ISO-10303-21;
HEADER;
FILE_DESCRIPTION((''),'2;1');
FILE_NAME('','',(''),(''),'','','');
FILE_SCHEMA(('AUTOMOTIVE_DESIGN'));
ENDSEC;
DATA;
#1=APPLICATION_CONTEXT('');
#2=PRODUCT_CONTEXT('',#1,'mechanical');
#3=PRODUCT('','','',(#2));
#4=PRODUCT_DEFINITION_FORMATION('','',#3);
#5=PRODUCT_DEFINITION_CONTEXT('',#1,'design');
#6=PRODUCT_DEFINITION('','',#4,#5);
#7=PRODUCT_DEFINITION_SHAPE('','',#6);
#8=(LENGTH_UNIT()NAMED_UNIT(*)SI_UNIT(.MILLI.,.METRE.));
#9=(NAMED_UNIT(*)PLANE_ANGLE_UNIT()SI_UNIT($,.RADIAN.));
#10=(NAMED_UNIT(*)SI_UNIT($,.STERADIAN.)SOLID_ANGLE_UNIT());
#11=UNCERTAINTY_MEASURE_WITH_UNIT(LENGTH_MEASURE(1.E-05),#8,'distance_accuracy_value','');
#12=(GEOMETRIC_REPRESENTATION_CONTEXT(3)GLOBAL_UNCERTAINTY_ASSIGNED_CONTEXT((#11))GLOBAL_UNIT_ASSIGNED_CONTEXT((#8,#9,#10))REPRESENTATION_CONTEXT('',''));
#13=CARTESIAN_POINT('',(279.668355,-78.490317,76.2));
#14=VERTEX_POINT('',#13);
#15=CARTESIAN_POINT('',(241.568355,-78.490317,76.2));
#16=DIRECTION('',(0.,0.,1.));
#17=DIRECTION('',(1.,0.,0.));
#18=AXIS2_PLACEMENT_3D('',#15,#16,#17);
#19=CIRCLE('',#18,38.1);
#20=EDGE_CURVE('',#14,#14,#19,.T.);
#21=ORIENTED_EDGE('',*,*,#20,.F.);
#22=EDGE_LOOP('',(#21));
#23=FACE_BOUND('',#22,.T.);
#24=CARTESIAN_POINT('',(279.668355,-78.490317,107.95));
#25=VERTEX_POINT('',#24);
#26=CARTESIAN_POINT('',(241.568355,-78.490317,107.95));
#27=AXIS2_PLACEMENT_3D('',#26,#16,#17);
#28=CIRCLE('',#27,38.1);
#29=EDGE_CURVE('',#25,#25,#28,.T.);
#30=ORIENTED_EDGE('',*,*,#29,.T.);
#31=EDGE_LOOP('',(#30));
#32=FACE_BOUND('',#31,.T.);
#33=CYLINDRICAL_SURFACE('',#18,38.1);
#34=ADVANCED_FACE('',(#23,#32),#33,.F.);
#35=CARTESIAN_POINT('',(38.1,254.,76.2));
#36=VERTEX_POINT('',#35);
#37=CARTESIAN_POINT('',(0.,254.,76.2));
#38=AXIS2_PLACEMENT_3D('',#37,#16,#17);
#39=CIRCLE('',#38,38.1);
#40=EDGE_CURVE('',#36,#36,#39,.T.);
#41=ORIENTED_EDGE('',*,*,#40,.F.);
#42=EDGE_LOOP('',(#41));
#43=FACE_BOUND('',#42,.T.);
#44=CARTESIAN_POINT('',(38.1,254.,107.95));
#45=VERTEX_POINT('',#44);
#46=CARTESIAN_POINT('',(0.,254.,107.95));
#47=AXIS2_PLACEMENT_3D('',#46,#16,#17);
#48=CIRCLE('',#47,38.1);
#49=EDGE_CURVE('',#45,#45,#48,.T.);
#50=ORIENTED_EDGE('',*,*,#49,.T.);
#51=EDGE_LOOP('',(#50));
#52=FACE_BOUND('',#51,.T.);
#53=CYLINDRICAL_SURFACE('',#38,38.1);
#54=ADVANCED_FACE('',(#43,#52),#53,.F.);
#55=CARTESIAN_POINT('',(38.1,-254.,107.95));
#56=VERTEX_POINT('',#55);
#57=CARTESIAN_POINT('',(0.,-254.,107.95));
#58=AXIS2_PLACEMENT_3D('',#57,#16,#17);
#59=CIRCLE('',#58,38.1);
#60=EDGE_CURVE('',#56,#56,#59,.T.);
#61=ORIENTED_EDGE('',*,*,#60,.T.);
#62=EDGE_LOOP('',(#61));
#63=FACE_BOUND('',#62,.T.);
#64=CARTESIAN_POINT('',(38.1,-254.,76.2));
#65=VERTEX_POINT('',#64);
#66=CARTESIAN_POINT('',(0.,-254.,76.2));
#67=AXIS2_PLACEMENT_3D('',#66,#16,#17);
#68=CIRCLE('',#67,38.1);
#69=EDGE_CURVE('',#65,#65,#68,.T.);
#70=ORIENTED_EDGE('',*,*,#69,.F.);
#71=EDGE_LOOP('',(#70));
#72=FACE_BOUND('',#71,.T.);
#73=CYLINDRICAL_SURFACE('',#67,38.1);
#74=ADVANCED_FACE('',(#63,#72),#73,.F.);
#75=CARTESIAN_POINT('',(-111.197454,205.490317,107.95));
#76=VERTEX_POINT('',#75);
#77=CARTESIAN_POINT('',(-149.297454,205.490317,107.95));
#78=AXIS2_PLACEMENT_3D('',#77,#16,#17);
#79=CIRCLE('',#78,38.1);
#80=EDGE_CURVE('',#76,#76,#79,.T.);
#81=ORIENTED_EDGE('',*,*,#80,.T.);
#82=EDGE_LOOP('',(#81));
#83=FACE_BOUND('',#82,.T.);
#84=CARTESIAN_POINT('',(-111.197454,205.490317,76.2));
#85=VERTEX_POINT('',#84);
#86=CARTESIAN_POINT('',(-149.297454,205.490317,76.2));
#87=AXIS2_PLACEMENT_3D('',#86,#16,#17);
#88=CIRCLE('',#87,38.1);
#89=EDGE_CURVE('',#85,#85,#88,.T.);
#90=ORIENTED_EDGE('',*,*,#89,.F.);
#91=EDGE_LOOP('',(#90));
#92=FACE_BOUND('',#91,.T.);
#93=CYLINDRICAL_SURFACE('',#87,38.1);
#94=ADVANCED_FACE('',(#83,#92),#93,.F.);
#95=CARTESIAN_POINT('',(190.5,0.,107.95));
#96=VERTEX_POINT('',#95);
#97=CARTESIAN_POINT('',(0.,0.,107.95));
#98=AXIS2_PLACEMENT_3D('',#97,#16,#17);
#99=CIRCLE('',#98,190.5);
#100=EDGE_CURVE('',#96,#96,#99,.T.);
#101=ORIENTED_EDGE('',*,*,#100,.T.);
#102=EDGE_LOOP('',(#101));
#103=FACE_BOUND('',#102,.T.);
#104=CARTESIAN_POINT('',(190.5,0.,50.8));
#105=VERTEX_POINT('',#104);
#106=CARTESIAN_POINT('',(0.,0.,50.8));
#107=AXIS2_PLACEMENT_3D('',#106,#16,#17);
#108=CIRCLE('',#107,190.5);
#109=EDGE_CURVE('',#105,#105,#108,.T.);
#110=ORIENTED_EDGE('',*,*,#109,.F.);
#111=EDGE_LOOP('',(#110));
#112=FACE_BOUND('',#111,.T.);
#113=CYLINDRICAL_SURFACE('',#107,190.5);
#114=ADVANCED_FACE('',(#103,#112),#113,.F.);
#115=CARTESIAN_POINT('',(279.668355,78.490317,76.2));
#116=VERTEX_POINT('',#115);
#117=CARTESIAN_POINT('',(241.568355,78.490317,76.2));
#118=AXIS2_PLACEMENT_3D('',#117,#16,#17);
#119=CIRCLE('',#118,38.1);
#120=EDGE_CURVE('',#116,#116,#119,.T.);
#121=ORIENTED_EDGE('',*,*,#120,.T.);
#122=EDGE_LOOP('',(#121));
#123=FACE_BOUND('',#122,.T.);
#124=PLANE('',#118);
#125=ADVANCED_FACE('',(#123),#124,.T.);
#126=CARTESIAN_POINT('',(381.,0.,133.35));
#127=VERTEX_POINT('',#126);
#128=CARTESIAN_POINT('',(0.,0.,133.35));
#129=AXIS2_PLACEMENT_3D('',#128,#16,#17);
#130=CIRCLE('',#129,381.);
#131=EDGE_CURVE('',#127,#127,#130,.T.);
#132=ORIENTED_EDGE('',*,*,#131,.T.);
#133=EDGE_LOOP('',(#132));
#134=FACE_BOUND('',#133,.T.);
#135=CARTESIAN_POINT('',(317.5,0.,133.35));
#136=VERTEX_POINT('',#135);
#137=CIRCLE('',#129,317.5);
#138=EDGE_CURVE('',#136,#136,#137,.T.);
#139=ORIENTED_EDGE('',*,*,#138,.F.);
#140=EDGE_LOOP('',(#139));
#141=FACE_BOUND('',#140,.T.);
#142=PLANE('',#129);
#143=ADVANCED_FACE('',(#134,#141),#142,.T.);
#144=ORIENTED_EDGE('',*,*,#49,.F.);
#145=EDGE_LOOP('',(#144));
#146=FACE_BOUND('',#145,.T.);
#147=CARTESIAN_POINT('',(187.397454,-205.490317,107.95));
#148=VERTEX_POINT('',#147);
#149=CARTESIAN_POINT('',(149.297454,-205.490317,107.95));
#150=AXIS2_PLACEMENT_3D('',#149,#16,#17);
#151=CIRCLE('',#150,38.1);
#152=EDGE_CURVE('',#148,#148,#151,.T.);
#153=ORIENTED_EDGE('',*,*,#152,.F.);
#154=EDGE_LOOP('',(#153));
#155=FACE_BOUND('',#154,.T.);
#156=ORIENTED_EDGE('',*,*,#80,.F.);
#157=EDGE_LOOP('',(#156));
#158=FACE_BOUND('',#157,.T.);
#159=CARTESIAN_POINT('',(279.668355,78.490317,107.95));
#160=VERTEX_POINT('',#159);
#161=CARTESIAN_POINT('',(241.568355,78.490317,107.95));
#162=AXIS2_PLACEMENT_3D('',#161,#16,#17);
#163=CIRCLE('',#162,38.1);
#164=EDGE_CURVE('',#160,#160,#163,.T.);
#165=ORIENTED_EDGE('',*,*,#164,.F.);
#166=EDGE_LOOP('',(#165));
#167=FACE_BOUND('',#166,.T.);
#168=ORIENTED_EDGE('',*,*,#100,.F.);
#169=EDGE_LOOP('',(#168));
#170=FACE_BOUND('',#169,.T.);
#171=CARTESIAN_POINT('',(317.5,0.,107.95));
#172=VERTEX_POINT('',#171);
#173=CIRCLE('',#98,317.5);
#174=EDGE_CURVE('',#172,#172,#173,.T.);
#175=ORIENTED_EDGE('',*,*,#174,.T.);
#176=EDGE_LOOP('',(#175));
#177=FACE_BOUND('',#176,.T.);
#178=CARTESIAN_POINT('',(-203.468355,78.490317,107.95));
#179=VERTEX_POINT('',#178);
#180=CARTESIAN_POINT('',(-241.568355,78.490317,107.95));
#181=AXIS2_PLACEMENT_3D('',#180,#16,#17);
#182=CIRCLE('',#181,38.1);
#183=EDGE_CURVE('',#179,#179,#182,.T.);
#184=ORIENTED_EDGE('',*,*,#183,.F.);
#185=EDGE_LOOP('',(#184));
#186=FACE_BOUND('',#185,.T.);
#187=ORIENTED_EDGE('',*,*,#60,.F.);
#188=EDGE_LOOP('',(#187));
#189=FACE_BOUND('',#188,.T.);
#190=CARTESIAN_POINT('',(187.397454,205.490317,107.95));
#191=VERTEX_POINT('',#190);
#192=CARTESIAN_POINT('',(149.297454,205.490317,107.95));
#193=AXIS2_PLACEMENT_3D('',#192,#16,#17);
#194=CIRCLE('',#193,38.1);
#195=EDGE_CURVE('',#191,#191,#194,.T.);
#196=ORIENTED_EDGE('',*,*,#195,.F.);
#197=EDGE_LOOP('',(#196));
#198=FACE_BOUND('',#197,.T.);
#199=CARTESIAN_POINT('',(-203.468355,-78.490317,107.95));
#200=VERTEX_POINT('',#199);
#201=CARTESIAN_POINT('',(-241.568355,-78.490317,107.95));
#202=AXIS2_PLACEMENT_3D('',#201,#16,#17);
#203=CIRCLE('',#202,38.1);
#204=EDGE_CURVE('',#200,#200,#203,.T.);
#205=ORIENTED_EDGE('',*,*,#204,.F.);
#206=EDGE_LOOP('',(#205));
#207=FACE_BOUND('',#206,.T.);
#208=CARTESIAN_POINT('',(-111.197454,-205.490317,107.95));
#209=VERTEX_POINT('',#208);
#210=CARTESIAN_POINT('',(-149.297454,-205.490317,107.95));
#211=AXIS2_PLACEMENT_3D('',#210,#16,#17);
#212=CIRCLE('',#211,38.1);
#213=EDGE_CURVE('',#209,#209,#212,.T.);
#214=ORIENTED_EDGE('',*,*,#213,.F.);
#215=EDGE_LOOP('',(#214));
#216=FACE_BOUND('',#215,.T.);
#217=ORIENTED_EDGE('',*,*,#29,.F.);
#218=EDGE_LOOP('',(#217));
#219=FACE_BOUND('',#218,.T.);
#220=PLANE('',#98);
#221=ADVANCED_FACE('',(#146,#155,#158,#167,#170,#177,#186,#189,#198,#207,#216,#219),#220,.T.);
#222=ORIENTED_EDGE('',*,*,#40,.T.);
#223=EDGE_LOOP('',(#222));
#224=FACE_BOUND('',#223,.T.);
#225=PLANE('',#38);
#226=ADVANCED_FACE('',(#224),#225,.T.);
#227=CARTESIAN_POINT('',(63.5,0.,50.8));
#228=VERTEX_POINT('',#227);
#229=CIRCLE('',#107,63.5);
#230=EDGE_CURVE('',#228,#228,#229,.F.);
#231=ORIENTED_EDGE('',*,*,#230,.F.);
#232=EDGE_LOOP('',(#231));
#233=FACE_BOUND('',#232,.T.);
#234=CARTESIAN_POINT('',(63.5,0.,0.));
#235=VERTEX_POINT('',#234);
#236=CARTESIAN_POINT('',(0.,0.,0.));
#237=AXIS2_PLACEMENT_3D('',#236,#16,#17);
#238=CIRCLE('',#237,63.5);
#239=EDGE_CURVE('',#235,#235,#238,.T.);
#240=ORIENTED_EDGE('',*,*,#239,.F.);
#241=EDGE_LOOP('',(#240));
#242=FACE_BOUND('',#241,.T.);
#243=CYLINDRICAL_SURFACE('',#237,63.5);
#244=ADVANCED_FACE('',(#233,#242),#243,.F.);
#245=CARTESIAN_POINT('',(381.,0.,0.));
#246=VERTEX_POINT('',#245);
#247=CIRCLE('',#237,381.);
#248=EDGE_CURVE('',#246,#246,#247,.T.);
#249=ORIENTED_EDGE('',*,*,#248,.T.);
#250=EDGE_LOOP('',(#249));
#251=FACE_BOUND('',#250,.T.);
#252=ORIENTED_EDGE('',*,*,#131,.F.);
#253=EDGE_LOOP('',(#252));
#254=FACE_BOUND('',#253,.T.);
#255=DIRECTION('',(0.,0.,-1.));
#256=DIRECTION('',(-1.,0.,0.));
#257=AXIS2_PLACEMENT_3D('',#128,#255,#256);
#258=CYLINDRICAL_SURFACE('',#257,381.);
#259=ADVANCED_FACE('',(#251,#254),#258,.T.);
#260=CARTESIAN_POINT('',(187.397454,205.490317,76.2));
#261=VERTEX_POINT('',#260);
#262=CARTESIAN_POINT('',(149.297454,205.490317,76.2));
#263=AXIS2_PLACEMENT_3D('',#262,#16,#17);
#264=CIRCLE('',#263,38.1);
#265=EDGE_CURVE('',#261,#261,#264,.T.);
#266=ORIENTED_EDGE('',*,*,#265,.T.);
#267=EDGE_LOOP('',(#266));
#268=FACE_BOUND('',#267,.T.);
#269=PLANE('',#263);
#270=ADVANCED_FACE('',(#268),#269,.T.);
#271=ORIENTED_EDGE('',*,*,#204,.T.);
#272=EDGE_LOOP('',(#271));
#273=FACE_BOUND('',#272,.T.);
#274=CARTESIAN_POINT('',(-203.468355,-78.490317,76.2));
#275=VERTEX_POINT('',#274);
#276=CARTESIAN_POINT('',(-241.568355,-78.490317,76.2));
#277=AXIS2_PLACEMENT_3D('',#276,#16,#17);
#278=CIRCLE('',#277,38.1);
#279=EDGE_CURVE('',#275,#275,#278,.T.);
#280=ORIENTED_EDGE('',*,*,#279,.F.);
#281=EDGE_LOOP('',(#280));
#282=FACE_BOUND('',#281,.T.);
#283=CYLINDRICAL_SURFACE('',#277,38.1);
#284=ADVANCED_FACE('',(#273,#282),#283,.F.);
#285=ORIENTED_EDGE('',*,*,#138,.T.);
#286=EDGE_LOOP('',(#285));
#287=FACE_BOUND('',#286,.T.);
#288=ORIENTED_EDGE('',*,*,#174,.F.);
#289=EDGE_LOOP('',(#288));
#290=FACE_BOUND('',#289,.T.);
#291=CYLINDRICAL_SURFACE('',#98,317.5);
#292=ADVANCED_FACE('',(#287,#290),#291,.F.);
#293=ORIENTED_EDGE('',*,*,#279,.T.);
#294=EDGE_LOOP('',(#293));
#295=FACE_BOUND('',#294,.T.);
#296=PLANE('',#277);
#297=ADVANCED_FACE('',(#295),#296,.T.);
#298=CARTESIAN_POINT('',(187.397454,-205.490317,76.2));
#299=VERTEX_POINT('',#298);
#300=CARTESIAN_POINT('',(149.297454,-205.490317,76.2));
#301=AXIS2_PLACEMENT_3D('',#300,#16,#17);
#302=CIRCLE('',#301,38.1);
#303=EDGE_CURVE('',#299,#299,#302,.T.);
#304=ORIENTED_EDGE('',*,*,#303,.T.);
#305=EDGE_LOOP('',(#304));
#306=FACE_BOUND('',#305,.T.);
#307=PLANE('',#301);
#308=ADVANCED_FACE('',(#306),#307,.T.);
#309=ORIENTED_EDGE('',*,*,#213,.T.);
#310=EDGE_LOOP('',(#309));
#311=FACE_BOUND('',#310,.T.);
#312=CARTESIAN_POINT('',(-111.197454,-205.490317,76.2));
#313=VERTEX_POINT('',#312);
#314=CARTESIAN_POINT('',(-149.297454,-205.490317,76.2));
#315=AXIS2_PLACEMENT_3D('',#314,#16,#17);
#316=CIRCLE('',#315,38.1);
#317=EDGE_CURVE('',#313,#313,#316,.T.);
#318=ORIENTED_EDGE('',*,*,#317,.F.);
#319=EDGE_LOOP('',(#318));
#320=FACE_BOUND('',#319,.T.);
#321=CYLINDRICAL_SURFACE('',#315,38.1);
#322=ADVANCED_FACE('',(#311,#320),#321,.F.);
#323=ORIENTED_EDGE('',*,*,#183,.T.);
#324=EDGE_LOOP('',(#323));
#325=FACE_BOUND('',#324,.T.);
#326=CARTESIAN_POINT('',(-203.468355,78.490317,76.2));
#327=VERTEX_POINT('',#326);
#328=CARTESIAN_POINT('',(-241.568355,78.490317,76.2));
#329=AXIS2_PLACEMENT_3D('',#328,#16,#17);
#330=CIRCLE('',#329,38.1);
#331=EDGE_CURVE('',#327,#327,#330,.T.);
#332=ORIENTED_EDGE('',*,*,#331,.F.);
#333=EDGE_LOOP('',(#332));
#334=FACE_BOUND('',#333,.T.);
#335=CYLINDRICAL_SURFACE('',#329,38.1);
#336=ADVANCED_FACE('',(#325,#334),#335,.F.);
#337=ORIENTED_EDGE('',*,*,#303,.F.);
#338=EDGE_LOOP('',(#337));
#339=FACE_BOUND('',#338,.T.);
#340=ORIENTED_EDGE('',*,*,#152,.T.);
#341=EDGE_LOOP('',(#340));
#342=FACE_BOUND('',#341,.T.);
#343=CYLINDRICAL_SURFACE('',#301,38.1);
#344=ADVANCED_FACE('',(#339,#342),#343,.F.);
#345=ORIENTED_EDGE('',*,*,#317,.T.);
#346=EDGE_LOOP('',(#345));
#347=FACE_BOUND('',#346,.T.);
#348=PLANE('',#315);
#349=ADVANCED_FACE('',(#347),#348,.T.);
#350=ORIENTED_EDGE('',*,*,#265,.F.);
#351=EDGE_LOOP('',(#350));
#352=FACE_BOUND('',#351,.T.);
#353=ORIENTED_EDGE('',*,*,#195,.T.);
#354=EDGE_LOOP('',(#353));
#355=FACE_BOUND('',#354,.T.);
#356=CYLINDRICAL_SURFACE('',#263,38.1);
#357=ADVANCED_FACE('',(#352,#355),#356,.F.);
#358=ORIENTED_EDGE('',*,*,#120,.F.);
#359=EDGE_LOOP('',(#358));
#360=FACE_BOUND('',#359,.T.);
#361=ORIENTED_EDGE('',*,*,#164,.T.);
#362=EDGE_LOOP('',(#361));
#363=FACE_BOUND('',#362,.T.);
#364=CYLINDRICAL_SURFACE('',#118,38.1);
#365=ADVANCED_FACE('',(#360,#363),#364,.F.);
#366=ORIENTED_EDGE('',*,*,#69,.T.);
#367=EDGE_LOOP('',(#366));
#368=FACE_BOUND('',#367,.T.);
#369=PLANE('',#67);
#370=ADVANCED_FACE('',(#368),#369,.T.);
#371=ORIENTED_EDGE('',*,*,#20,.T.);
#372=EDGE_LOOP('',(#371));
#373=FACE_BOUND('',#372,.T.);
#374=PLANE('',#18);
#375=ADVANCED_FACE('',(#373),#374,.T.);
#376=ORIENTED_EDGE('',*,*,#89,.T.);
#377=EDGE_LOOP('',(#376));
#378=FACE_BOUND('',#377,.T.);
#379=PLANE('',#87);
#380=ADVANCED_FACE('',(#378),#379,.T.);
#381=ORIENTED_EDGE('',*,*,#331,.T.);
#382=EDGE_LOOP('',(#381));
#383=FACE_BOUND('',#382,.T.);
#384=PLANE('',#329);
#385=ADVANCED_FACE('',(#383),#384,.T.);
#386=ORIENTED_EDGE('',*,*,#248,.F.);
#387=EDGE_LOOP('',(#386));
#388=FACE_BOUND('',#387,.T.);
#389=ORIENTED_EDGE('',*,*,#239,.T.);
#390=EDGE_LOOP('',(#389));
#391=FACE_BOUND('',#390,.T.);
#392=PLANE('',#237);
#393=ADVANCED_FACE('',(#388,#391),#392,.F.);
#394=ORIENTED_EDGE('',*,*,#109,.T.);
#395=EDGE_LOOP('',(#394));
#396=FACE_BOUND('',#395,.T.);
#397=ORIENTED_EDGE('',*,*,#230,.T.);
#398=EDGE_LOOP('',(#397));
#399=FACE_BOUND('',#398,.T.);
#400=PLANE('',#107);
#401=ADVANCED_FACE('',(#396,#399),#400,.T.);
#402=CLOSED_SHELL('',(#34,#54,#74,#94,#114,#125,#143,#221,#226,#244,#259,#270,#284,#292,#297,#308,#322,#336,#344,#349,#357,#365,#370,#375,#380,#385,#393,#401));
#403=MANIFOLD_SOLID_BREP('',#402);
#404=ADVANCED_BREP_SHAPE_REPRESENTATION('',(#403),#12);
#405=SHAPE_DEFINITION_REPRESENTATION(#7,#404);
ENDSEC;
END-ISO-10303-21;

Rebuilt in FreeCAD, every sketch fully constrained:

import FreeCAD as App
import Part
import Sketcher
from FreeCAD import Vector
Q = App.Units.Quantity

doc = App.newDocument("Part")
body = doc.addObject("PartDesign::Body", "Body")

# Sketch on XY plane
sketch1 = body.newObject("Sketcher::SketchObject", "Sketch")
sketch1.AttachmentSupport = (doc.getObject("XY_Plane"), [""])
sketch1.MapMode = "FlatFace"
sketch1.addGeometry(Part.Circle(Vector(0, 0, 0), Vector(0, 0, 1), 381), False)
sketch1.addConstraint([
    Sketcher.Constraint("Coincident", 0, 3, -1, 1),
    Sketcher.Constraint("Diameter", 0, Q("30 in")),
])
pad1 = body.newObject("PartDesign::Pad", "Pad")
pad1.Profile = sketch1
pad1.Length = Q("5.25 in")

# Sketch on XY plane
sketch2 = body.newObject("Sketcher::SketchObject", "Sketch001")
sketch2.AttachmentSupport = (doc.getObject("XY_Plane"), [""])
sketch2.MapMode = "FlatFace"
sketch2.AttachmentOffset = App.Placement(Vector(0, 0, 5.25 * 25.4), App.Rotation())
sketch2.addGeometry(Part.Circle(Vector(0, 0, 0), Vector(0, 0, 1), 64), False)
sketch2.addConstraint([
    Sketcher.Constraint("Coincident", 0, 3, -1, 1),
    Sketcher.Constraint("Diameter", 0, Q("5 in")),
])
pocket1 = body.newObject("PartDesign::Pocket", "Pocket")
pocket1.Profile = sketch2
pocket1.Type = "ThroughAll"

# Sketch on XY plane
sketch3 = body.newObject("Sketcher::SketchObject", "Sketch002")
sketch3.AttachmentSupport = (doc.getObject("XY_Plane"), [""])
sketch3.MapMode = "FlatFace"
sketch3.AttachmentOffset = App.Placement(Vector(0, 0, 5.25 * 25.4), App.Rotation())
sketch3.addGeometry(Part.Circle(Vector(0, 0, 0), Vector(0, 0, 1), 318), False)
sketch3.addConstraint([
    Sketcher.Constraint("Coincident", 0, 3, -1, 1),
    Sketcher.Constraint("Diameter", 0, Q("25 in")),
])
pocket2 = body.newObject("PartDesign::Pocket", "Pocket001")
pocket2.Profile = sketch3
pocket2.Length = Q("1 in")

# Sketch on XY plane
sketch4 = body.newObject("Sketcher::SketchObject", "Sketch003")
sketch4.AttachmentSupport = (doc.getObject("XY_Plane"), [""])
sketch4.MapMode = "FlatFace"
sketch4.AttachmentOffset = App.Placement(Vector(0, 0, 5.25 * 25.4), App.Rotation())
sketch4.addGeometry(Part.Circle(Vector(0, 0, 0), Vector(0, 0, 1), 190), False)
sketch4.addConstraint([
    Sketcher.Constraint("Coincident", 0, 3, -1, 1),
    Sketcher.Constraint("Diameter", 0, Q("15 in")),
])
pocket3 = body.newObject("PartDesign::Pocket", "Pocket002")
pocket3.Profile = sketch4
pocket3.Length = Q("3.25 in")

# Sketch on XY plane
sketch5 = body.newObject("Sketcher::SketchObject", "Sketch004")
sketch5.AttachmentSupport = (doc.getObject("XY_Plane"), [""])
sketch5.MapMode = "FlatFace"
sketch5.AttachmentOffset = App.Placement(Vector(0, 0, 5.25 * 25.4), App.Rotation())
sketch5.addGeometry([
    Part.Circle(Vector(0, 254, 0), Vector(0, 0, 1), 38),  # 0
    Part.Circle(Vector(149, 205, 0), Vector(0, 0, 1), 38),  # 1
    Part.Circle(Vector(242, 78, 0), Vector(0, 0, 1), 38),  # 2
    Part.Circle(Vector(242, -78, 0), Vector(0, 0, 1), 38),  # 3
    Part.Circle(Vector(149, -205, 0), Vector(0, 0, 1), 38),  # 4
    Part.Circle(Vector(0, -254, 0), Vector(0, 0, 1), 38),  # 5
    Part.Circle(Vector(-149, -205, 0), Vector(0, 0, 1), 38),  # 6
    Part.Circle(Vector(-242, -78, 0), Vector(0, 0, 1), 38),  # 7
    Part.Circle(Vector(-242, 78, 0), Vector(0, 0, 1), 38),  # 8
    Part.Circle(Vector(-149, 205, 0), Vector(0, 0, 1), 38),  # 9
], False)
sketch5.addConstraint([
    Sketcher.Constraint("Equal", 0, 1),
    Sketcher.Constraint("Equal", 1, 2),
    Sketcher.Constraint("Equal", 2, 3),
    Sketcher.Constraint("Equal", 3, 4),
    Sketcher.Constraint("Equal", 4, 5),
    Sketcher.Constraint("Equal", 5, 6),
    Sketcher.Constraint("Equal", 6, 7),
    Sketcher.Constraint("Equal", 7, 8),
    Sketcher.Constraint("Equal", 8, 9),
    Sketcher.Constraint("Symmetric", 0, 3, 5, 3, -1, 1),
    Sketcher.Constraint("Symmetric", 1, 3, 6, 3, -1, 1),
    Sketcher.Constraint("Symmetric", 2, 3, 7, 3, -1, 1),
    Sketcher.Constraint("Symmetric", 3, 3, 8, 3, -1, 1),
    Sketcher.Constraint("Symmetric", 4, 3, 9, 3, -1, 1),
    Sketcher.Constraint("Symmetric", 4, 3, 6, 3, -2),
    Sketcher.Constraint("Symmetric", 3, 3, 7, 3, -2),
    Sketcher.Constraint("PointOnObject", 0, 3, -2),
    Sketcher.Constraint("Diameter", 0, Q("3 in")),
    Sketcher.Constraint("DistanceY", -1, 1, 0, 3, Q("10 in")),
    Sketcher.Constraint("DistanceY", 2, 3, 1, 3, Q("5 in")),
    Sketcher.Constraint("DistanceX", 1, 3, 2, 3, Q("92.270901 mm")),
    Sketcher.Constraint("DistanceX", 6, 3, 4, 3, Q("298.594908 mm")),
    Sketcher.Constraint("DistanceY", -1, 1, 1, 3, Q("205.490317 mm")),
])
pocket4 = body.newObject("PartDesign::Pocket", "Pocket003")
pocket4.Profile = sketch5
pocket4.Length = Q("2.25 in")

doc.recompute()
